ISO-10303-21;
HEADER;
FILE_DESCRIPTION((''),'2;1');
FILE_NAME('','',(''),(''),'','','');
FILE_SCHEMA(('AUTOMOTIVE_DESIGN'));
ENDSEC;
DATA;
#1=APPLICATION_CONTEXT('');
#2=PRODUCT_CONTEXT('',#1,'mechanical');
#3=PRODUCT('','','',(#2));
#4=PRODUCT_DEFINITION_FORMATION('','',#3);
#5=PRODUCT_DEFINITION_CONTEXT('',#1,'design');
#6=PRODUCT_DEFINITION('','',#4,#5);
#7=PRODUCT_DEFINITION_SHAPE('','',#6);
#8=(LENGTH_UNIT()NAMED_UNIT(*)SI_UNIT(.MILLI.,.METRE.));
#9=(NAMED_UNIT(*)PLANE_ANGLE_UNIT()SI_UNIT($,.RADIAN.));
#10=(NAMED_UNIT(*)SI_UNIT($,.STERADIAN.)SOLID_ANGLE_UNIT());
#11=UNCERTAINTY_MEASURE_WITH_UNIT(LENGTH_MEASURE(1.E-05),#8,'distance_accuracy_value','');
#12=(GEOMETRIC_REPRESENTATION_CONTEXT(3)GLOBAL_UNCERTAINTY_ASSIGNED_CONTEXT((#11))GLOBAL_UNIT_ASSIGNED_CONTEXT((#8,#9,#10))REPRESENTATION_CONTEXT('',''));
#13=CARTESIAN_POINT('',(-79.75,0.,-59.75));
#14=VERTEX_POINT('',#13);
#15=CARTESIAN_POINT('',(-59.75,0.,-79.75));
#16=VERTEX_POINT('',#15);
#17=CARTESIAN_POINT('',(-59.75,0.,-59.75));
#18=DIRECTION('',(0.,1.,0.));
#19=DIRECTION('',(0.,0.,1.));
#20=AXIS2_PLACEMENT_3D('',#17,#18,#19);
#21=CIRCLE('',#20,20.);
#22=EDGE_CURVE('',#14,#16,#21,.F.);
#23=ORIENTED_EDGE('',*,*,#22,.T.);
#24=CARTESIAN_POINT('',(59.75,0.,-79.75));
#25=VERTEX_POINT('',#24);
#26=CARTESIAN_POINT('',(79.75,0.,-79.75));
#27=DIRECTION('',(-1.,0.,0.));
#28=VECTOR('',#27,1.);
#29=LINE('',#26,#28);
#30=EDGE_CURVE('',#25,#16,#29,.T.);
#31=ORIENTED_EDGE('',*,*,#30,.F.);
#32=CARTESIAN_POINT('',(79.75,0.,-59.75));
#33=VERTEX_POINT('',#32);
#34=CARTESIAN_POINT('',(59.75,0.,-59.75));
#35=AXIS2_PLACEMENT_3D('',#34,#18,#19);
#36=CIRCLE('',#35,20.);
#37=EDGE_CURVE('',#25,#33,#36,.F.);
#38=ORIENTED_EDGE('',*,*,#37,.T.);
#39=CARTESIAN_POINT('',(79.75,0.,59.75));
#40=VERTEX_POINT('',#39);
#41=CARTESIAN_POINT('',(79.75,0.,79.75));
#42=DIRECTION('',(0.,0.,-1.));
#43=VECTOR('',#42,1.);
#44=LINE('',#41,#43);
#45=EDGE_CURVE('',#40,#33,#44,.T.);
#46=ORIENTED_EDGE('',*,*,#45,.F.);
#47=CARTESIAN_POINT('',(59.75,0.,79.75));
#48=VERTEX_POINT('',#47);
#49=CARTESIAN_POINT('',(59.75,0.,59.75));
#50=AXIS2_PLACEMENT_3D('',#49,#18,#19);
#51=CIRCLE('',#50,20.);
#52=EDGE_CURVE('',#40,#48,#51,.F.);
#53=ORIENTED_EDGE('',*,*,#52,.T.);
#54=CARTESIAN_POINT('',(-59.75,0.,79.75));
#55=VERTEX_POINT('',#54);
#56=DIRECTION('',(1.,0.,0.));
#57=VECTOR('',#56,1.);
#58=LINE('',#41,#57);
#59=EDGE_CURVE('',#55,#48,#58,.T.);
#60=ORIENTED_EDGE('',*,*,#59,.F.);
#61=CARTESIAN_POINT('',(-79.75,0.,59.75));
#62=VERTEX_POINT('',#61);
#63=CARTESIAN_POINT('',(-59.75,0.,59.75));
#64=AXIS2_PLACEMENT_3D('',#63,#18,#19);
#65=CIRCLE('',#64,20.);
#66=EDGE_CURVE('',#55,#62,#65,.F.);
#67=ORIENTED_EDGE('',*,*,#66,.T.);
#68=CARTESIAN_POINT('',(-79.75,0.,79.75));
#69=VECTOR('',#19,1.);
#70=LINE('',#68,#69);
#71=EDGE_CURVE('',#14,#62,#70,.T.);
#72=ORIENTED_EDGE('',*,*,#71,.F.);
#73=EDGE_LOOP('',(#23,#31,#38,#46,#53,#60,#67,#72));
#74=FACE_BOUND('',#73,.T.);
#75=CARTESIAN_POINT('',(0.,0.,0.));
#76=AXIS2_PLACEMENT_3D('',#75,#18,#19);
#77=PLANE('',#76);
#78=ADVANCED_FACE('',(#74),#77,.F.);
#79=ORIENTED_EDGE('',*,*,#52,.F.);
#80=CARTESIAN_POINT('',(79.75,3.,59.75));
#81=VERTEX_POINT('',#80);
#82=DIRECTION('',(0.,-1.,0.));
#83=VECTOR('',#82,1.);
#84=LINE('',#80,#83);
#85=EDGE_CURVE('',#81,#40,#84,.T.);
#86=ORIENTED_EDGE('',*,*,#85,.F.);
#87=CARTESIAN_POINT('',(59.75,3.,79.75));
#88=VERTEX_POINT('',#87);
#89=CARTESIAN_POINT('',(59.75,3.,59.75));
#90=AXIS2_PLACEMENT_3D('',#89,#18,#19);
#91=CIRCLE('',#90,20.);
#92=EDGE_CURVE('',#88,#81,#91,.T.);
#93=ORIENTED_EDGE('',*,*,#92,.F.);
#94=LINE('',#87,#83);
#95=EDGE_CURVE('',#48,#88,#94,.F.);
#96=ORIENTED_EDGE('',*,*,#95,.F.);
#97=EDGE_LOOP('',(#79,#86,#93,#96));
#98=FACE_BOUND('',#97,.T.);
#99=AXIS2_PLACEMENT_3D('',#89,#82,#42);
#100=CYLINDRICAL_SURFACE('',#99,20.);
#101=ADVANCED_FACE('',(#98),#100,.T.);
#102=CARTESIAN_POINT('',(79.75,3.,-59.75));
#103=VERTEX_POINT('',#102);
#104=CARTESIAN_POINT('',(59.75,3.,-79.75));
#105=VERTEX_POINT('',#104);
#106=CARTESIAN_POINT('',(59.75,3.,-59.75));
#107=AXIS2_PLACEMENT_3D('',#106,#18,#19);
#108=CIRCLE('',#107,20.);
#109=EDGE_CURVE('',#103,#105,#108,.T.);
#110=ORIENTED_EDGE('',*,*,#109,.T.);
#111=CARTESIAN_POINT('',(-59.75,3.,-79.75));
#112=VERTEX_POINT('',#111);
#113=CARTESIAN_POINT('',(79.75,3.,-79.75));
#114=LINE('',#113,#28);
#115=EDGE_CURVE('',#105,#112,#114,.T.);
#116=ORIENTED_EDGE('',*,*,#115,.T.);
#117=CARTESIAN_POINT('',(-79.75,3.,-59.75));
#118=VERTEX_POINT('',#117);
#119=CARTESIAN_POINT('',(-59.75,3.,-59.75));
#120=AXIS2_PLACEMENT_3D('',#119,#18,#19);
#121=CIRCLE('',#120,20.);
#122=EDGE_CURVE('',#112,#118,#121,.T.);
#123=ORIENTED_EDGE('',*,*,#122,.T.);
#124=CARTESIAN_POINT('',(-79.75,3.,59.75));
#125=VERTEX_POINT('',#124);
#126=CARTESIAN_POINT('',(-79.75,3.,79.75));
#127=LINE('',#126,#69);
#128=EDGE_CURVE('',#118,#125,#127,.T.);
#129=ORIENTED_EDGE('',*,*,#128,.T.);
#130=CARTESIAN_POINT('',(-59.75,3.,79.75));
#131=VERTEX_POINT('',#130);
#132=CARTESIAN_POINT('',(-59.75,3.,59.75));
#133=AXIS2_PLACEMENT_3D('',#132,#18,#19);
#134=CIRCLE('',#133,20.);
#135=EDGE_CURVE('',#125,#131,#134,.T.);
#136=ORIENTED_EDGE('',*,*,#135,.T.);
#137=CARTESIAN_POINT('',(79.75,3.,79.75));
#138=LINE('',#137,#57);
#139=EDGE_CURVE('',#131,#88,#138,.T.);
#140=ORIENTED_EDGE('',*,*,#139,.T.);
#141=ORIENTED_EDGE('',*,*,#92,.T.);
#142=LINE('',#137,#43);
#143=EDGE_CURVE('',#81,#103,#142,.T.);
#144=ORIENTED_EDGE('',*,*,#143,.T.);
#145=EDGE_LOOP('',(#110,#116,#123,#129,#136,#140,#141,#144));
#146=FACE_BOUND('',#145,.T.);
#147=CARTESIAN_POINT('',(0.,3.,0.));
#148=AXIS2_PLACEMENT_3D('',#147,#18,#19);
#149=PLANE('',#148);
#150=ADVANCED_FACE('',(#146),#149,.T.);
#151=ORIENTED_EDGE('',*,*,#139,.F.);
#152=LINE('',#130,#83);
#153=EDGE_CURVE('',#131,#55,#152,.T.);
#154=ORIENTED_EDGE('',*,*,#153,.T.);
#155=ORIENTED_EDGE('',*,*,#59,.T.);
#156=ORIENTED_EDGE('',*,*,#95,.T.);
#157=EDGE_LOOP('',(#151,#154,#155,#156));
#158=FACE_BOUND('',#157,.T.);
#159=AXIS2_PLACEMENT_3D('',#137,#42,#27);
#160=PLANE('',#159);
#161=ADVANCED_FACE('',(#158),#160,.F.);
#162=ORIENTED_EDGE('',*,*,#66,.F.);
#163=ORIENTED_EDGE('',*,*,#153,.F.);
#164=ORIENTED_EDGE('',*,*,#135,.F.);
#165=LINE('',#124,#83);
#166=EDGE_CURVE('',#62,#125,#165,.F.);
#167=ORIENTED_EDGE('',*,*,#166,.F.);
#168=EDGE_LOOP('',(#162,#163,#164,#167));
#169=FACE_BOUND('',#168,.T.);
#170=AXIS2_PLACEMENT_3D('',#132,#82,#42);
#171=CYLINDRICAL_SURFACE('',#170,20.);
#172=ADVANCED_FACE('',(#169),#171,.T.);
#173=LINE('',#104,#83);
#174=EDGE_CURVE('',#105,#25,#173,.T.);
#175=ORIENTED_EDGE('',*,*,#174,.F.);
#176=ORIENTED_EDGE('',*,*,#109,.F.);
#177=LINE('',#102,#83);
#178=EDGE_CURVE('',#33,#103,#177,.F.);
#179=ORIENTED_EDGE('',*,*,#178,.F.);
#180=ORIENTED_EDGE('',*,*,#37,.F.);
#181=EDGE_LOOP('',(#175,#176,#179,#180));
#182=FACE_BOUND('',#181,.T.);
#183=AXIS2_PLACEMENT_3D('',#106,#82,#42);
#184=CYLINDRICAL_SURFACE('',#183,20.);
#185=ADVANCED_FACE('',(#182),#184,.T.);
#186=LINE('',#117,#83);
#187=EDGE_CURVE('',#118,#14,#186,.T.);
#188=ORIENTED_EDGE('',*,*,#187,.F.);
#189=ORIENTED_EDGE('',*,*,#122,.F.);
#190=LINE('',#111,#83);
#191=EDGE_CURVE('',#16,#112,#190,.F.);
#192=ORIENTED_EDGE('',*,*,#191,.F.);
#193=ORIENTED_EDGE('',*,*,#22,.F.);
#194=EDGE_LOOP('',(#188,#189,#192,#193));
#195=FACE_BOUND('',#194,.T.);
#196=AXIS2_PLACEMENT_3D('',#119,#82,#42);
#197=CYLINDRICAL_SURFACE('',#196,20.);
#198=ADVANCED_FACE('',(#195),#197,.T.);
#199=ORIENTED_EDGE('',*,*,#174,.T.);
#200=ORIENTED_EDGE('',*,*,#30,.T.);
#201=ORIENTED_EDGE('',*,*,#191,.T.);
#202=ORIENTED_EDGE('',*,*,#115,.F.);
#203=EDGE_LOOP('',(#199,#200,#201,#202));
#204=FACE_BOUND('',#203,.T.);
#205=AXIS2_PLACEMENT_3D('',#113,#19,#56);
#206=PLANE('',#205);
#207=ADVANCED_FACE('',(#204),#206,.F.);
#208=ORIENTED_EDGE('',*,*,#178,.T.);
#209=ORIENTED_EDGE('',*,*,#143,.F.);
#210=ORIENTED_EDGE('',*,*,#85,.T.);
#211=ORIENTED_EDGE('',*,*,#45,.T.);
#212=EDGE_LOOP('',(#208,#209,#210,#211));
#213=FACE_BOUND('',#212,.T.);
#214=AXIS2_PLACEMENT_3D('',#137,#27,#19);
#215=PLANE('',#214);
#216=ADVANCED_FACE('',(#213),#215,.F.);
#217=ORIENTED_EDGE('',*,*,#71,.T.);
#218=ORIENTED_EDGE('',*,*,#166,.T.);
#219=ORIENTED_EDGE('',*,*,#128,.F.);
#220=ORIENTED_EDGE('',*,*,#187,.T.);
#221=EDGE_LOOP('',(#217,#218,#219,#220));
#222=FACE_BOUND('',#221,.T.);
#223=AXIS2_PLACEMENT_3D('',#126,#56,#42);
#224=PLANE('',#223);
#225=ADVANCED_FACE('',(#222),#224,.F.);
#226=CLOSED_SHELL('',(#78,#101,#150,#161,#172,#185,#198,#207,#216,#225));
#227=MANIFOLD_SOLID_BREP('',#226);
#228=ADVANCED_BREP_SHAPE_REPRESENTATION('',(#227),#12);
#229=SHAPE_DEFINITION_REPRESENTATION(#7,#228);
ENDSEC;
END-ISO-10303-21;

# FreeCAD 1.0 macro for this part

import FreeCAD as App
import Part
import Sketcher
from FreeCAD import Vector
Q = App.Units.Quantity


def edges_at(feature, points):
    """Names of the edges that pass closest to the given points."""
    edges = feature.Shape.Edges
    near = lambda p: min(range(len(edges)), key=lambda i: edges[i].distToShape(Part.Vertex(*p))[0])
    return sorted({f"Edge{near(p) + 1}" for p in points})


def add_polygon(sketch, points):
    """Adds a closed chain of lines whose ends are joined by coincident constraints."""
    first, n = sketch.GeometryCount, len(points)
    for a, b in zip(points, points[1:] + points[:1]):
        sketch.addGeometry(Part.LineSegment(App.Vector(*a, 0), App.Vector(*b, 0)), False)
    for i in range(n):
        sketch.addConstraint(Sketcher.Constraint("Coincident", first + i, 2, first + (i + 1) % n, 1))

doc = App.newDocument("Part")
body = doc.addObject("PartDesign::Body", "Body")

# Sketch on XZ plane
sketch1 = body.newObject("Sketcher::SketchObject", "Sketch")
sketch1.AttachmentSupport = (doc.getObject("XZ_Plane"), [""])
sketch1.MapMode = "FlatFace"
add_polygon(sketch1, [(-80, -80), (-80, 80), (80, 80), (80, -80)])  # lines 0-3
sketch1.addConstraint([
    Sketcher.Constraint("Vertical", 0),
    Sketcher.Constraint("Horizontal", 1),
    Sketcher.Constraint("Vertical", 2),
    Sketcher.Constraint("Horizontal", 3),
    Sketcher.Constraint("Symmetric", 0, 2, 2, 2, -1, 1),
    Sketcher.Constraint("Equal", 3, 0),
    Sketcher.Constraint("DistanceX", 1, 1, 1, 2, Q("159.5 mm")),
])
pad1 = body.newObject("PartDesign::Pad", "Pad")
pad1.Profile = sketch1
pad1.Length = 3
pad1.Reversed = True
doc.recompute()

fillet = body.newObject("PartDesign::Fillet", "Fillet")
fillet.Base = (pad1, edges_at(pad1, [
    (-79.75, 1.5, -79.75),
    (79.75, 1.5, -79.75),
    (79.75, 1.5, 79.75),
    (-79.75, 1.5, 79.75),
]))
fillet.Radius = 20

doc.recompute()
